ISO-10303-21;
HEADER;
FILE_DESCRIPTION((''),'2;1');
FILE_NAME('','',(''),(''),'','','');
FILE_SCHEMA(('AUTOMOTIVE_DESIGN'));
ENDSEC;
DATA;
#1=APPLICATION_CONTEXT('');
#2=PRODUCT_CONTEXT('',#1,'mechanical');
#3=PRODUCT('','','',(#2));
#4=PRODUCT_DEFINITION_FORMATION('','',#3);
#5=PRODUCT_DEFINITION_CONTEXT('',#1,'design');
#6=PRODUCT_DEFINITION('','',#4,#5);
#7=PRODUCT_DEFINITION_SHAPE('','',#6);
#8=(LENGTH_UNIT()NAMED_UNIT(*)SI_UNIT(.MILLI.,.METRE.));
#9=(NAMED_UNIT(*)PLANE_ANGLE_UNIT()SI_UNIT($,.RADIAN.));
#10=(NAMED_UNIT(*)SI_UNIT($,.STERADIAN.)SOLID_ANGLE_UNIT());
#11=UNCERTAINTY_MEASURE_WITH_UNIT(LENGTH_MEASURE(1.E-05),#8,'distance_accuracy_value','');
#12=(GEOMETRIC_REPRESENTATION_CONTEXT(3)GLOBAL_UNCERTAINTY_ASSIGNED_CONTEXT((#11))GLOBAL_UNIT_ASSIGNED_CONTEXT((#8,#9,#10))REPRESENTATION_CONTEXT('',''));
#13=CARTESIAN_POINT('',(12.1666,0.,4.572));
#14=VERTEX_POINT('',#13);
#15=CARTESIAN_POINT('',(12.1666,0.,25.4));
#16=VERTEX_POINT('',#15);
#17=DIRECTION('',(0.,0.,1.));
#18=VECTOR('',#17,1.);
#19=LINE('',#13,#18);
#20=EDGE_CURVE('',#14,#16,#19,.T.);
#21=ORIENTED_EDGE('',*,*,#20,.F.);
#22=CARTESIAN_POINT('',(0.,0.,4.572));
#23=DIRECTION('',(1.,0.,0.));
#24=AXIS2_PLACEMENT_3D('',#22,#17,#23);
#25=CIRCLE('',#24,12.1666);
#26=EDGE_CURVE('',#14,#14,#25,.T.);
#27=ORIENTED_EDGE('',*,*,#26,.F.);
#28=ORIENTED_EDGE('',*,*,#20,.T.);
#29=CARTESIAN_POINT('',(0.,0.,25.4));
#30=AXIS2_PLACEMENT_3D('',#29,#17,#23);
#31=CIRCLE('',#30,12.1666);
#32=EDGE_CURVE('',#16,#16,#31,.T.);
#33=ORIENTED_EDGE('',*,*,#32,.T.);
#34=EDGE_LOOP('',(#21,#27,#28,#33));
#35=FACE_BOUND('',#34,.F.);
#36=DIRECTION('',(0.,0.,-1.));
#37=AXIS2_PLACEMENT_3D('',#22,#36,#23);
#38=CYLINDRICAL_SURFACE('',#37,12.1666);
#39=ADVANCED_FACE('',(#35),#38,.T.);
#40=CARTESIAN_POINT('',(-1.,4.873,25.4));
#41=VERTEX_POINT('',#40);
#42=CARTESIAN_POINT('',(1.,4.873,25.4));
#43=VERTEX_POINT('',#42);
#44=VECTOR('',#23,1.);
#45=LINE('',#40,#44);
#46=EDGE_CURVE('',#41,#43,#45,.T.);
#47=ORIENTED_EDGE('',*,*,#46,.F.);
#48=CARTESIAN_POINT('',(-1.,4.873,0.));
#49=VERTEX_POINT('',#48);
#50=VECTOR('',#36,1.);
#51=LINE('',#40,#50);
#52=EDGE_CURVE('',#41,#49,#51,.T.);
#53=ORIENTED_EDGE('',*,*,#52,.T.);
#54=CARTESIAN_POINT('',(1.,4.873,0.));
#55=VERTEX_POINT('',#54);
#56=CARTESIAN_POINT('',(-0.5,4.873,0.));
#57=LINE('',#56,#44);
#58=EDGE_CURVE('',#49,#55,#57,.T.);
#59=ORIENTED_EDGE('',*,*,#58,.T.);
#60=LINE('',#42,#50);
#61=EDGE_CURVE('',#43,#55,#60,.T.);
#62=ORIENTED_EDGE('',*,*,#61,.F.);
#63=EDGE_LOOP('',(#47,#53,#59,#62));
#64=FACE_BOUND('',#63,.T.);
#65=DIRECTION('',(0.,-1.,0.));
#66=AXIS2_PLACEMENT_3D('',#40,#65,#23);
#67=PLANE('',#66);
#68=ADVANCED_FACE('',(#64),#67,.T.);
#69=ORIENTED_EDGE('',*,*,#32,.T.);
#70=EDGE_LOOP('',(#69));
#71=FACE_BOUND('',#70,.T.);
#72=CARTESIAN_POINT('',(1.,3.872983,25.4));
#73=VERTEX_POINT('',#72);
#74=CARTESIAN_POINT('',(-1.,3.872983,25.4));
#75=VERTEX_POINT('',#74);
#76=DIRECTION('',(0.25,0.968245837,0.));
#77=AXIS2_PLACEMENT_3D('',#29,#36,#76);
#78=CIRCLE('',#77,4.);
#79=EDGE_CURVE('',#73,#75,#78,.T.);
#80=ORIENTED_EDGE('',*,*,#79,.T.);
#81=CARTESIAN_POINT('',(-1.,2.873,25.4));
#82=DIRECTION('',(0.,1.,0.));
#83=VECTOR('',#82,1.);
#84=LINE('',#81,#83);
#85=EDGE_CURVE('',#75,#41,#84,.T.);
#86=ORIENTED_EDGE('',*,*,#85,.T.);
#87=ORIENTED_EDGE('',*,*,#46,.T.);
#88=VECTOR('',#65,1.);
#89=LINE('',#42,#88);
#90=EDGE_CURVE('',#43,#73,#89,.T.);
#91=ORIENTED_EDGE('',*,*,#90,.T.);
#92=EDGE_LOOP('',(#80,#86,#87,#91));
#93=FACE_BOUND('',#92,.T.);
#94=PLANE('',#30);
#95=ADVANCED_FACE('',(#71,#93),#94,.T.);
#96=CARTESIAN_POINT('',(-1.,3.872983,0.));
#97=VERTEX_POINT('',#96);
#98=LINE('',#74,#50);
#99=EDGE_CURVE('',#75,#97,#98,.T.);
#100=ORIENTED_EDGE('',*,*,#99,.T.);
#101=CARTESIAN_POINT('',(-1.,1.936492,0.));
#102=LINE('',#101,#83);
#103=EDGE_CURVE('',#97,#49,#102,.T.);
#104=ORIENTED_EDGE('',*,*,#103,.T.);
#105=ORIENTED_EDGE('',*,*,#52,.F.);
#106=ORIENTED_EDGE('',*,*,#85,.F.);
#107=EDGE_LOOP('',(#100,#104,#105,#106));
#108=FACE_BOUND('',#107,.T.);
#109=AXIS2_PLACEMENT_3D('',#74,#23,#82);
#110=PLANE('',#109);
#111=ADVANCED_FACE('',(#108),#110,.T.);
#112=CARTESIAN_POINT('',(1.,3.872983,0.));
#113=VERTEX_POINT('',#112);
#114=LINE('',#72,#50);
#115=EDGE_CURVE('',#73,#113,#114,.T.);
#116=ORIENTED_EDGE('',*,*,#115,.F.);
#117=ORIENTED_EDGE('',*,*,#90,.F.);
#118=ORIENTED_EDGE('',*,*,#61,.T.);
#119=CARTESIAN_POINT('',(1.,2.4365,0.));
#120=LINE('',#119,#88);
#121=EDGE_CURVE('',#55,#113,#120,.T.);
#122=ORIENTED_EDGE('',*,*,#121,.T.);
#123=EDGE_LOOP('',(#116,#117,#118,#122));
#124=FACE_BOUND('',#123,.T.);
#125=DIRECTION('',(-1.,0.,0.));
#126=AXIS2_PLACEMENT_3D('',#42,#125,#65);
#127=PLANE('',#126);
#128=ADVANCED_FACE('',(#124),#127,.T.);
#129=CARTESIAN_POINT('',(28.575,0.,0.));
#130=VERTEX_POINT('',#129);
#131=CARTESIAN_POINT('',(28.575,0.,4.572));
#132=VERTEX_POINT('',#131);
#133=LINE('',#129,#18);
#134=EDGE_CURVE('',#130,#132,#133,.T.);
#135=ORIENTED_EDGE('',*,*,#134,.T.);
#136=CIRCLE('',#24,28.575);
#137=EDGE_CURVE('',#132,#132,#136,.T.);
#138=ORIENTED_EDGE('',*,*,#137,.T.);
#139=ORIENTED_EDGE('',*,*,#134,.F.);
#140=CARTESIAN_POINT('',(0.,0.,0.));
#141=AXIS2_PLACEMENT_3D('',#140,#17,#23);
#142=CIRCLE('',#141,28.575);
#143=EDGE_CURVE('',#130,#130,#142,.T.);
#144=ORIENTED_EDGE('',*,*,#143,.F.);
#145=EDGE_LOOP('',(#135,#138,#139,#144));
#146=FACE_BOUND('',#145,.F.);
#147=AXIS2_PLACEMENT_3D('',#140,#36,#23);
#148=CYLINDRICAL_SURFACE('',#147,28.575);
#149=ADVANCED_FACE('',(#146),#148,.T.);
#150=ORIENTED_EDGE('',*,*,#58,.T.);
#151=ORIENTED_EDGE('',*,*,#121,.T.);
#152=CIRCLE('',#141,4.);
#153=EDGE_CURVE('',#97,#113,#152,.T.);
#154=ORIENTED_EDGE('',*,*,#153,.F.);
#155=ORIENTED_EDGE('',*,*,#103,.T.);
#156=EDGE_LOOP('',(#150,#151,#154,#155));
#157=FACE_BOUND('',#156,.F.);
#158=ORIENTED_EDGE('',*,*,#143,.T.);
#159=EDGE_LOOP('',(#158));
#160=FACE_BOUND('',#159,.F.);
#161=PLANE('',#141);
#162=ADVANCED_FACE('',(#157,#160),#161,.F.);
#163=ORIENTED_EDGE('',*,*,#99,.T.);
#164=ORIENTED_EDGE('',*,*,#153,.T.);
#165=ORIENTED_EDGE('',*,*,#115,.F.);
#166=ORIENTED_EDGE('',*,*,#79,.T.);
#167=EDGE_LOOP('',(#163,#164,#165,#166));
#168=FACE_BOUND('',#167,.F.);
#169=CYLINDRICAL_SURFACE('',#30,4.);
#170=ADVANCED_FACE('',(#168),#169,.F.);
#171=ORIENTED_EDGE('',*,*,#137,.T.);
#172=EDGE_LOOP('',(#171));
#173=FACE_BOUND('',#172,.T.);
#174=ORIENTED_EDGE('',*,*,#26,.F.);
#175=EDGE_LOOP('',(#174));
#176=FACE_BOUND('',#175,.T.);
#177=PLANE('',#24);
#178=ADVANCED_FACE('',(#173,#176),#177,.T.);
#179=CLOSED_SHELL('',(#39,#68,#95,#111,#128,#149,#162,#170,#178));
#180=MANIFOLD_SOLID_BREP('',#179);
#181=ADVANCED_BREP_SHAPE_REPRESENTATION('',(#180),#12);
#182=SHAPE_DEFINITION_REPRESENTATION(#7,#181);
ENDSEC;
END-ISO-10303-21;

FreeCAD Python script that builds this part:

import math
import FreeCAD as App
import Part
import Sketcher
from FreeCAD import Vector
Q = App.Units.Quantity

doc = App.newDocument("Part")
params = doc.addObject("Spreadsheet::Sheet", "Params")
for row, (alias, value) in enumerate([
    ("sketch1_diameter", "57.15 mm"),
    ("pad1_length", "4.572 mm"),
    ("pad2_length", "20.828 mm"),
    ("sketch3_radius", "4 mm"),
    ("sketch3_width", "2 mm"),
    ("sketch3_height", "1 mm"),
], start=1):
    params.set(f"A{row}", alias)
    params.set(f"B{row}", "=" + value)
    params.setAlias(f"B{row}", alias)

body = doc.addObject("PartDesign::Body", "Body")

sketch1 = body.newObject("Sketcher::SketchObject", "Sketch")
sketch1.AttachmentSupport = (doc.getObject("XY_Plane"), [""])
sketch1.MapMode = "FlatFace"
sketch1.addGeometry(Part.Circle(Vector(0, 0, 0), Vector(0, 0, 1), 29), False)
sketch1.addConstraint([
    Sketcher.Constraint("Coincident", 0, 3, -1, 1),
    Sketcher.Constraint("Diameter", 0, Q("57.15 mm")),
])
sketch1.setExpression("Constraints[1]", "Params.sketch1_diameter")
pad1 = body.newObject("PartDesign::Pad", "Pad")
pad1.Profile = sketch1
pad1.setExpression("Length", "Params.pad1_length")

sketch2 = body.newObject("Sketcher::SketchObject", "Sketch001")
sketch2.AttachmentSupport = (doc.getObject("XY_Plane"), [""])
sketch2.MapMode = "FlatFace"
sketch2.AttachmentOffset = App.Placement(Vector(0, 0, 4.572), App.Rotation())
sketch2.addGeometry(Part.Circle(Vector(0, 0, 0), Vector(0, 0, 1), 12), False)
sketch2.addConstraint([
    Sketcher.Constraint("Coincident", 0, 3, -1, 1),
    Sketcher.Constraint("Diameter", 0, Q("24.3332 mm")),
])
pad2 = body.newObject("PartDesign::Pad", "Pad001")
pad2.Profile = sketch2
pad2.setExpression("Length", "Params.pad2_length")

sketch3 = body.newObject("Sketcher::SketchObject", "Sketch002")
sketch3.AttachmentSupport = (doc.getObject("XY_Plane"), [""])
sketch3.MapMode = "FlatFace"
sketch3.AttachmentOffset = App.Placement(Vector(0, 0, 25.4), App.Rotation())
sketch3.addGeometry([
    Part.ArcOfCircle(Part.Circle(Vector(0, 0, 0), Vector(0, 0, 1), 4), math.radians(104), math.radians(436)),
    Part.LineSegment(Vector(1, 3.9, 0), Vector(1, 4.9, 0)),
    Part.LineSegment(Vector(1, 4.9, 0), Vector(-1, 4.9, 0)),
    Part.LineSegment(Vector(-1, 4.9, 0), Vector(-1, 3.9, 0)),
], False)
sketch3.addConstraint([
    Sketcher.Constraint("Coincident", 0, 2, 1, 1),
    Sketcher.Constraint("Coincident", 1, 2, 2, 1),
    Sketcher.Constraint("Coincident", 2, 2, 3, 1),
    Sketcher.Constraint("Coincident", 3, 2, 0, 1),
    Sketcher.Constraint("Vertical", 1),
    Sketcher.Constraint("Horizontal", 2),
    Sketcher.Constraint("Vertical", 3),
    Sketcher.Constraint("Coincident", 0, 3, -1, 1),
    Sketcher.Constraint("Horizontal", 0, 2, 3, 2),
    Sketcher.Constraint("Radius", 0, Q("4 mm")),
    Sketcher.Constraint("DistanceX", 2, 2, 2, 1, Q("2 mm")),
    Sketcher.Constraint("DistanceY", 1, 1, 1, 2, Q("1 mm")),
])
sketch3.setExpression("Constraints[9]", "Params.sketch3_radius")
sketch3.setExpression("Constraints[10]", "Params.sketch3_width")
sketch3.setExpression("Constraints[11]", "Params.sketch3_height")
pocket1 = body.newObject("PartDesign::Pocket", "Pocket")
pocket1.Profile = sketch3
pocket1.Type = "ThroughAll"

doc.recompute()
